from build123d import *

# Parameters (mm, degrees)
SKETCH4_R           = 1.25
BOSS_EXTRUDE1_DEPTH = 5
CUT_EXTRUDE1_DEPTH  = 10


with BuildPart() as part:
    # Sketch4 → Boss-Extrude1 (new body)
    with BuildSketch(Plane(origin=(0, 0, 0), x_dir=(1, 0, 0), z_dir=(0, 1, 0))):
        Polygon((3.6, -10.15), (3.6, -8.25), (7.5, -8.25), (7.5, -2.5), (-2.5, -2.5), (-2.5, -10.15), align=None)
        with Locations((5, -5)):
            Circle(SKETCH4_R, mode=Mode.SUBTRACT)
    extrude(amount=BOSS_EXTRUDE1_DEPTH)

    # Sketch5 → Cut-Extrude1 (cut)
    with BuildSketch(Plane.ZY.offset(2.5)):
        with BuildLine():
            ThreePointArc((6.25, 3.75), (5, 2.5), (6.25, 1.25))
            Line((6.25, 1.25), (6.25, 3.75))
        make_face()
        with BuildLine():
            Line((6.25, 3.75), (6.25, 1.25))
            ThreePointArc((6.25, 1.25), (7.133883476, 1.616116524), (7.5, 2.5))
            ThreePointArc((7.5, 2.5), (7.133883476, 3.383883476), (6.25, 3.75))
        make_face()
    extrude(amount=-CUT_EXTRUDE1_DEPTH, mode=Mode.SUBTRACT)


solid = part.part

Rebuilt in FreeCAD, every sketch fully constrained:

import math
import FreeCAD as App
import Part
import Sketcher
from FreeCAD import Vector
Q = App.Units.Quantity

doc = App.newDocument("Part")
params = doc.addObject("Spreadsheet::Sheet", "Params")
for row, (alias, value) in enumerate([
    ("sketch1_diameter", "2.5 mm"),
    ("sketch1_width", "10 mm"),
    ("sketch1_width2", "3.9 mm"),
    ("sketch1_height", "1.9 mm"),
    ("sketch1_height2", "5.75 mm"),
    ("pad1_length", "5 mm"),
    ("sketch2_radius", "1.25 mm"),
    ("pocket1_length", "10 mm"),
], start=1):
    params.set(f"A{row}", alias)
    params.set(f"B{row}", "=" + value)
    params.setAlias(f"B{row}", alias)

body = doc.addObject("PartDesign::Body", "Body")

# Sketch on XZ plane
sketch1 = body.newObject("Sketcher::SketchObject", "Sketch")
sketch1.AttachmentSupport = (doc.getObject("XZ_Plane"), [""])
sketch1.MapMode = "FlatFace"
sketch1.addGeometry(Part.LineSegment(Vector(3.6, 10.2, 0), Vector(3.6, 8.2, 0)), False)
sketch1.addGeometry(Part.LineSegment(Vector(3.6, 8.2, 0), Vector(7.5, 8.2, 0)), False)
sketch1.addGeometry(Part.LineSegment(Vector(7.5, 8.2, 0), Vector(7.5, 2.5, 0)), False)
sketch1.addGeometry(Part.LineSegment(Vector(7.5, 2.5, 0), Vector(-2.5, 2.5, 0)), False)
sketch1.addGeometry(Part.LineSegment(Vector(-2.5, 2.5, 0), Vector(-2.5, 10.2, 0)), False)
sketch1.addGeometry(Part.LineSegment(Vector(-2.5, 10.2, 0), Vector(3.6, 10.2, 0)), False)
sketch1.addGeometry(Part.Circle(Vector(5, 5, 0), Vector(0, 0, 1), 1.2), False)
sketch1.addConstraint(Sketcher.Constraint("Coincident", 0, 2, 1, 1))
sketch1.addConstraint(Sketcher.Constraint("Coincident", 1, 2, 2, 1))
sketch1.addConstraint(Sketcher.Constraint("Coincident", 2, 2, 3, 1))
sketch1.addConstraint(Sketcher.Constraint("Coincident", 3, 2, 4, 1))
sketch1.addConstraint(Sketcher.Constraint("Coincident", 4, 2, 5, 1))
sketch1.addConstraint(Sketcher.Constraint("Coincident", 5, 2, 0, 1))
sketch1.addConstraint(Sketcher.Constraint("Vertical", 0))
sketch1.addConstraint(Sketcher.Constraint("Horizontal", 1))
sketch1.addConstraint(Sketcher.Constraint("Vertical", 2))
sketch1.addConstraint(Sketcher.Constraint("Horizontal", 3))
sketch1.addConstraint(Sketcher.Constraint("Vertical", 4))
sketch1.addConstraint(Sketcher.Constraint("Horizontal", 5))
sketch1.addConstraint(Sketcher.Constraint("Diameter", 6, Q("2.5 mm")))
sketch1.addConstraint(Sketcher.Constraint("DistanceX", 3, 2, 3, 1, Q("10 mm")))
sketch1.addConstraint(Sketcher.Constraint("DistanceX", 1, 1, 1, 2, Q("3.9 mm")))
sketch1.addConstraint(Sketcher.Constraint("DistanceY", 0, 2, 0, 1, Q("1.9 mm")))
sketch1.addConstraint(Sketcher.Constraint("DistanceX", -1, 1, 6, 3, Q("5 mm")))
sketch1.addConstraint(Sketcher.Constraint("DistanceY", -1, 1, 6, 3, Q("5 mm")))
sketch1.addConstraint(Sketcher.Constraint("DistanceY", 2, 2, 2, 1, Q("5.75 mm")))
sketch1.addConstraint(Sketcher.Constraint("DistanceX", -1, 1, 0, 2, Q("3.6 mm")))
sketch1.addConstraint(Sketcher.Constraint("DistanceY", -1, 1, 2, 2, Q("2.5 mm")))
sketch1.setExpression("Constraints[12]", "Params.sketch1_diameter")
sketch1.setExpression("Constraints[13]", "Params.sketch1_width")
sketch1.setExpression("Constraints[14]", "Params.sketch1_width2")
sketch1.setExpression("Constraints[15]", "Params.sketch1_height")
sketch1.setExpression("Constraints[18]", "Params.sketch1_height2")
pad1 = body.newObject("PartDesign::Pad", "Pad")
pad1.Profile = sketch1
pad1.setExpression("Length", "Params.pad1_length")
pad1.Reversed = True

# Sketch on YZ plane
sketch2 = body.newObject("Sketcher::SketchObject", "Sketch001")
sketch2.AttachmentSupport = (doc.getObject("YZ_Plane"), [""])
sketch2.MapMode = "FlatFace"
sketch2.AttachmentOffset = App.Placement(Vector(0, 0, -2.5), App.Rotation())
sketch2.addGeometry(Part.ArcOfCircle(Part.Circle(Vector(2.5, 6.2, 0), Vector(0, 0, 1), 1.2), math.radians(180), math.radians(360)), False)
sketch2.addGeometry(Part.ArcOfCircle(Part.Circle(Vector(2.5, 6.2, 0), Vector(0, 0, 1), 1.3), math.radians(90), math.radians(180)), False)
sketch2.addGeometry(Part.ArcOfCircle(Part.Circle(Vector(2.5, 6.2, 0), Vector(0, 0, 1), 1.3), math.radians(0), math.radians(90)), False)
sketch2.addConstraint(Sketcher.Constraint("Tangent", 0, 1, 1, 2))
sketch2.addConstraint(Sketcher.Constraint("Tangent", 1, 1, 2, 2))
sketch2.addConstraint(Sketcher.Constraint("Tangent", 2, 1, 0, 2))
sketch2.addConstraint(Sketcher.Constraint("Horizontal", 2, 3, 0, 1))
sketch2.addConstraint(Sketcher.Constraint("Horizontal", 0, 1, 2, 1))
sketch2.addConstraint(Sketcher.Constraint("Vertical", 2, 3, 1, 1))
sketch2.addConstraint(Sketcher.Constraint("Radius", 0, Q("1.25 mm")))
sketch2.addConstraint(Sketcher.Constraint("DistanceX", -1, 1, 0, 3, Q("2.5 mm")))
sketch2.addConstraint(Sketcher.Constraint("DistanceY", -1, 1, 1, 1, Q("7.5 mm")))
sketch2.setExpression("Constraints[6]", "Params.sketch2_radius")
pocket1 = body.newObject("PartDesign::Pocket", "Pocket")
pocket1.Profile = sketch2
pocket1.setExpression("Length", "Params.pocket1_length")
pocket1.Reversed = True

doc.recompute()
